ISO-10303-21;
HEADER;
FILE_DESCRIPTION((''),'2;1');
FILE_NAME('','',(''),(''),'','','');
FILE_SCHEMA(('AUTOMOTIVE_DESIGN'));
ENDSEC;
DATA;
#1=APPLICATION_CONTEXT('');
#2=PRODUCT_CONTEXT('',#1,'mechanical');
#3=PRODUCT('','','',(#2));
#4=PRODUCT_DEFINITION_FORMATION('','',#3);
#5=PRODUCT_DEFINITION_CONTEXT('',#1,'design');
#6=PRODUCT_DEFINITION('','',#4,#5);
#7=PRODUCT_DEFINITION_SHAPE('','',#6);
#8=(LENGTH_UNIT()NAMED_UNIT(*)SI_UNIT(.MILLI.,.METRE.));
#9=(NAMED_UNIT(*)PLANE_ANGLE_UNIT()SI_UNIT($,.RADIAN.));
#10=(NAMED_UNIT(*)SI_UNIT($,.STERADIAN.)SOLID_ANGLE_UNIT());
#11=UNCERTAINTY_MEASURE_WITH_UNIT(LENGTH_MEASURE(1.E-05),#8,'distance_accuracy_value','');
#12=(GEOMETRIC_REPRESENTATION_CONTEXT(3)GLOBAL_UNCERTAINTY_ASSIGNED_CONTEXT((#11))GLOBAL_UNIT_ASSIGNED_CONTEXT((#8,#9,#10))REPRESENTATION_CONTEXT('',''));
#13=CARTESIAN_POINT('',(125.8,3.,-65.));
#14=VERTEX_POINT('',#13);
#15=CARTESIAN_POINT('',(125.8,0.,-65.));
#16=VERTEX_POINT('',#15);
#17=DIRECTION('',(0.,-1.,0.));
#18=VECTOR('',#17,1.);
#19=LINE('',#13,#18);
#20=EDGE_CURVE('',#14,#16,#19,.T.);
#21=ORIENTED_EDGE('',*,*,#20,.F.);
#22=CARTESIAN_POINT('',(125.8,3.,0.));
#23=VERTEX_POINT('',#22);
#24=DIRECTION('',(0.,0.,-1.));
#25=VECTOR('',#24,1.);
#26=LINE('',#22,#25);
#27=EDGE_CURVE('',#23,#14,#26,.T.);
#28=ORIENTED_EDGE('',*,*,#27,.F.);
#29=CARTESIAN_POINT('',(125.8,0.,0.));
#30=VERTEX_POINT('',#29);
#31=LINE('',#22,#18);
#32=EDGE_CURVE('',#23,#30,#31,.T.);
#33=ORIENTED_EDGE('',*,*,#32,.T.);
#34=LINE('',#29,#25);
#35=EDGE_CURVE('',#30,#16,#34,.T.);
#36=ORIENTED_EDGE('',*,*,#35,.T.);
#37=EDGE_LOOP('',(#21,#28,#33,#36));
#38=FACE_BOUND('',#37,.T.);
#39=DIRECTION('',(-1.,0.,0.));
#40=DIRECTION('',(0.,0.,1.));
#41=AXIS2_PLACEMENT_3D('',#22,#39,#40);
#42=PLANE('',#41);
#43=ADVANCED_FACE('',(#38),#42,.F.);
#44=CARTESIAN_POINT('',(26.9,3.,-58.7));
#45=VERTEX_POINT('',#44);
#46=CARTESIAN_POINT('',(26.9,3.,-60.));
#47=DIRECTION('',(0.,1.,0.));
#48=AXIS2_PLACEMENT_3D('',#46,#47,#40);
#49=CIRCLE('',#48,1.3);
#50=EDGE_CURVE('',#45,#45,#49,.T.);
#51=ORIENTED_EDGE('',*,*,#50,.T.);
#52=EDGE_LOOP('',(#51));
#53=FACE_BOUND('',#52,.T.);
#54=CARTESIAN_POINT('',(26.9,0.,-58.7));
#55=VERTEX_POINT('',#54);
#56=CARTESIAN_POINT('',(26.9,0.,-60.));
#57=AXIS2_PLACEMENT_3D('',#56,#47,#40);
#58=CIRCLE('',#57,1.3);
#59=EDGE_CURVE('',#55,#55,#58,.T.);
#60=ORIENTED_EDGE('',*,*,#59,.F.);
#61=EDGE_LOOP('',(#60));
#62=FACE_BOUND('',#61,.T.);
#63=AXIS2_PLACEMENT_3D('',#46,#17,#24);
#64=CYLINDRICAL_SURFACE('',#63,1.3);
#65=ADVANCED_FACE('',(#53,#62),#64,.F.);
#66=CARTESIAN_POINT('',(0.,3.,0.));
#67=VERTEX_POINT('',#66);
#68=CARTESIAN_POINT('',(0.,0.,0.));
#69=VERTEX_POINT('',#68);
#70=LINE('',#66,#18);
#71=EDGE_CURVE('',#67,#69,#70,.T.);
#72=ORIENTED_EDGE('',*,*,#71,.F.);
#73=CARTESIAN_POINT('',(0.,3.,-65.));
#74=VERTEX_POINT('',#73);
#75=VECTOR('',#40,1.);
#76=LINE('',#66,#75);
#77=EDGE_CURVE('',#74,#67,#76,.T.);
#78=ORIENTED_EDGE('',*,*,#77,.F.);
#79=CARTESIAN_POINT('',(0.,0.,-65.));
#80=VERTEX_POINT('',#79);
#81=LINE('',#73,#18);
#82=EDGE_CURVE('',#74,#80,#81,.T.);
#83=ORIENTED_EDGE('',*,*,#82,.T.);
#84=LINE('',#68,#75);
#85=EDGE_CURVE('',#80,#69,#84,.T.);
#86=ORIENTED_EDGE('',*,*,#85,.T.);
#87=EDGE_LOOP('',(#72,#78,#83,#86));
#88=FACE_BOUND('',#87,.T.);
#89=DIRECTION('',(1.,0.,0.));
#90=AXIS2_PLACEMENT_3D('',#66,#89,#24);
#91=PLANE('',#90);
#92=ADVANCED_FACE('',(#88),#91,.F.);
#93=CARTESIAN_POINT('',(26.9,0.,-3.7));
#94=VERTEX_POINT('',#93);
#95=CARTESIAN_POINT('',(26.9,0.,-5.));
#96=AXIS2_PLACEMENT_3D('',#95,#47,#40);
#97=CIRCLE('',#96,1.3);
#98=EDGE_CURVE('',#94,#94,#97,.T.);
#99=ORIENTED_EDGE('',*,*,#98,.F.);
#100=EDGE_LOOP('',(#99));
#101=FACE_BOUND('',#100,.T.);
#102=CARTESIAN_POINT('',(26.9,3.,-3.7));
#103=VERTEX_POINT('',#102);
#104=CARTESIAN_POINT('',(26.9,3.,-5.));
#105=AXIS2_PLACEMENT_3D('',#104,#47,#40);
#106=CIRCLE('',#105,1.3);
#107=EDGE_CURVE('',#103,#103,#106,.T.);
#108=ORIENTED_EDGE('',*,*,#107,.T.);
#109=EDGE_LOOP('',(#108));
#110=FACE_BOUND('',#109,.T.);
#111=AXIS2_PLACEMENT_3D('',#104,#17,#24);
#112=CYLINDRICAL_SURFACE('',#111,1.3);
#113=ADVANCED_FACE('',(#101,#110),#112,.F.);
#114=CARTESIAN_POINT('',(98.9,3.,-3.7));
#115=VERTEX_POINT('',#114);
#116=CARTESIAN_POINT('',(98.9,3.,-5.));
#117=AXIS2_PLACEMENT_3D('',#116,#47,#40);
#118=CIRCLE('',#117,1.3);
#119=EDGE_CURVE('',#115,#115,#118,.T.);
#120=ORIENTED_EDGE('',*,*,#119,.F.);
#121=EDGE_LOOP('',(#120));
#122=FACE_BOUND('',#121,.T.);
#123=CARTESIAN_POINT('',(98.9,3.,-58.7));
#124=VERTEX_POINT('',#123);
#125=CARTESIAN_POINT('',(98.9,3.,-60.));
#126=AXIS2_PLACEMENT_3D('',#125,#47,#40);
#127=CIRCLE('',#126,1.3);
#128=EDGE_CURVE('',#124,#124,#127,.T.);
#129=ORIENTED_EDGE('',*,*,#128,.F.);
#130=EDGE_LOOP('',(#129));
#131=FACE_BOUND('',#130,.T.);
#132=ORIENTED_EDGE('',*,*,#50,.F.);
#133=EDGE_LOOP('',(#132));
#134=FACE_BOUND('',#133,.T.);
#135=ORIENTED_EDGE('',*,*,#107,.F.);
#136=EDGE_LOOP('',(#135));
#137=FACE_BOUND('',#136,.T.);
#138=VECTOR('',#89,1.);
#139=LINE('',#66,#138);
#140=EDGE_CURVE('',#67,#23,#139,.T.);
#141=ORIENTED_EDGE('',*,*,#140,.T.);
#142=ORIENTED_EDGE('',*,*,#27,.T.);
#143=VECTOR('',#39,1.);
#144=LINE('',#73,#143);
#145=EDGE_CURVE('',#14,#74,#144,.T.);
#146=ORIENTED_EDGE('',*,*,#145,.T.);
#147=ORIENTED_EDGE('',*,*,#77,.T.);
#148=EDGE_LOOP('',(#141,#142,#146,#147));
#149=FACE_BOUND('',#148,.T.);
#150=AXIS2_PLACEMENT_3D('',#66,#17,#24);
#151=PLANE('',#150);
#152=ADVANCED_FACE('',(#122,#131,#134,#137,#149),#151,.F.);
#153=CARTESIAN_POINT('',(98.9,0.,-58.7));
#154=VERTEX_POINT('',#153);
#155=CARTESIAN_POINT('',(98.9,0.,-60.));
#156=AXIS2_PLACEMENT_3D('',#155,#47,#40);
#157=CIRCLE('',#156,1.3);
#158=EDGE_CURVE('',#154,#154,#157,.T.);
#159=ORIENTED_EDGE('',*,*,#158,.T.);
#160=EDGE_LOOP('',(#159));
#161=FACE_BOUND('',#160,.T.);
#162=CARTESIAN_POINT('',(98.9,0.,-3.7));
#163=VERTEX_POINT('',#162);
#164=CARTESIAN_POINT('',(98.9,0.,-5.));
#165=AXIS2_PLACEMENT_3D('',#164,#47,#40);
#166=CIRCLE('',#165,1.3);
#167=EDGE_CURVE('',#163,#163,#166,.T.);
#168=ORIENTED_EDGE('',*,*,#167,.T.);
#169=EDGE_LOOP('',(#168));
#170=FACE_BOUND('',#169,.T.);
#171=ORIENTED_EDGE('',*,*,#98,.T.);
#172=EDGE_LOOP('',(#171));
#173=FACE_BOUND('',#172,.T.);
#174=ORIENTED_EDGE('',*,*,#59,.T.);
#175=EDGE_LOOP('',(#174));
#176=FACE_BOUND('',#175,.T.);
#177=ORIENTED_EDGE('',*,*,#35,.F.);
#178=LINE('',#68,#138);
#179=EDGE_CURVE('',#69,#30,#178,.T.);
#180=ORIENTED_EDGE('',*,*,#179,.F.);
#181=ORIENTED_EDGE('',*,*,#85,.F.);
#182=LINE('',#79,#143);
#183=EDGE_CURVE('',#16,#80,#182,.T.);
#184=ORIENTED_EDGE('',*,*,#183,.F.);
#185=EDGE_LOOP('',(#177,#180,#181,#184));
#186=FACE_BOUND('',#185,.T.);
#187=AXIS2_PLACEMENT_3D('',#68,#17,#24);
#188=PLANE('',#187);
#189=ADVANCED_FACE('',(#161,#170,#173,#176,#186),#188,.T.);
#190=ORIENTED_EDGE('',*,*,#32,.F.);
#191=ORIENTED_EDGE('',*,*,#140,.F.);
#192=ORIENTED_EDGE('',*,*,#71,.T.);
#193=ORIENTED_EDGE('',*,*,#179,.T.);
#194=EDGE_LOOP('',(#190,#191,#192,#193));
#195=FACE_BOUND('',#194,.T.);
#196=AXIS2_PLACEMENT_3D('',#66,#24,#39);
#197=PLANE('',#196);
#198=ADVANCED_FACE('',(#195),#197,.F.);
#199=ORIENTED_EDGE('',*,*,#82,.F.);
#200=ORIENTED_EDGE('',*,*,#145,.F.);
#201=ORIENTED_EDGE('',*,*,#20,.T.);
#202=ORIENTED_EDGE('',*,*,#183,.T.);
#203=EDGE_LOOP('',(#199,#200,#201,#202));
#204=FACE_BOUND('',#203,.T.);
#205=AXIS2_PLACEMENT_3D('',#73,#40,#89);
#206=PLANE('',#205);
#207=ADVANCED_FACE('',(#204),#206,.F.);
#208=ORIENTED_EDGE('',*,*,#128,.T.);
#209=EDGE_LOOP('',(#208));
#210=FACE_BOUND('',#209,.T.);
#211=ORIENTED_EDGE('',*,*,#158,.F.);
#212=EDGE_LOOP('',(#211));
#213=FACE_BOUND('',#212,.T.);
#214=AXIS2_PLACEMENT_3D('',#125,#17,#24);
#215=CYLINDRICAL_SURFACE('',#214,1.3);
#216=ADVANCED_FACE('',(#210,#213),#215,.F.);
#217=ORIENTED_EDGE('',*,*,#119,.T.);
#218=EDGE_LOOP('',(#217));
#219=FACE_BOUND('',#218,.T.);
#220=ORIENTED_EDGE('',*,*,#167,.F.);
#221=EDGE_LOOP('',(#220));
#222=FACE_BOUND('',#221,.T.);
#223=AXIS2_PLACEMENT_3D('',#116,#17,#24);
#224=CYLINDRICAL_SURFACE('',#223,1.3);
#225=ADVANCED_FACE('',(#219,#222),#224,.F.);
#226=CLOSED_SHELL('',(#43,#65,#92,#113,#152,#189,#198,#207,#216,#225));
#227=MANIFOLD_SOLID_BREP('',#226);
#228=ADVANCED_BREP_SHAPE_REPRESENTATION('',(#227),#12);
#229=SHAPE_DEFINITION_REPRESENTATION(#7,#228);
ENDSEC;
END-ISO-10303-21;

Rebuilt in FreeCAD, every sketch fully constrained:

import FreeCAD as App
import Part
import Sketcher
from FreeCAD import Vector


def add_polygon(sketch, points):
    """Adds a closed chain of lines whose ends are joined by coincident constraints."""
    first, n = sketch.GeometryCount, len(points)
    for a, b in zip(points, points[1:] + points[:1]):
        sketch.addGeometry(Part.LineSegment(App.Vector(*a, 0), App.Vector(*b, 0)), False)
    for i in range(n):
        sketch.addConstraint(Sketcher.Constraint("Coincident", first + i, 2, first + (i + 1) % n, 1))

doc = App.newDocument("Part")
body = doc.addObject("PartDesign::Body", "Body")

sketch1 = body.newObject("Sketcher::SketchObject", "Sketch")
sketch1.AttachmentSupport = (doc.getObject("XZ_Plane"), [""])
sketch1.MapMode = "FlatFace"
add_polygon(sketch1, [(0, -65), (0, 0), (125.8, 0), (125.8, -65)])
sketch1.addGeometry(Part.Circle(Vector(26.9, -5, 0), Vector(0, 0, 1), 1.3), False)
sketch1.addGeometry(Part.Circle(Vector(98.9, -5, 0), Vector(0, 0, 1), 1.3), False)
sketch1.addGeometry(Part.Circle(Vector(26.9, -60, 0), Vector(0, 0, 1), 1.3), False)
sketch1.addGeometry(Part.Circle(Vector(98.9, -60, 0), Vector(0, 0, 1), 1.3), False)
sketch1.addConstraint([
    Sketcher.Constraint("Vertical", 0),
    Sketcher.Constraint("Horizontal", 1),
    Sketcher.Constraint("Vertical", 2),
    Sketcher.Constraint("Horizontal", 3),
    Sketcher.Constraint("Coincident", 0, 2, -1, 1),
    Sketcher.Constraint("Equal", 4, 5),
    Sketcher.Constraint("Equal", 5, 6),
    Sketcher.Constraint("Equal", 6, 7),
    Sketcher.Constraint("Horizontal", 4, 3, 5, 3),
    Sketcher.Constraint("Horizontal", 6, 3, 7, 3),
    Sketcher.Constraint("Vertical", 4, 3, 6, 3),
    Sketcher.Constraint("Vertical", 5, 3, 7, 3),
    Sketcher.Constraint("Diameter", 4, 2.6),
    Sketcher.Constraint("DistanceY", 0, 1, 0, 2, 65.0),
    Sketcher.Constraint("DistanceX", 1, 1, 1, 2, 125.8),
    Sketcher.Constraint("DistanceY", 4, 3, -1, 1, 5.0),
    Sketcher.Constraint("DistanceY", 6, 3, -1, 1, 60.0),
    Sketcher.Constraint("DistanceX", 4, 3, 5, 3, 72.0),
    Sketcher.Constraint("DistanceX", -1, 1, 4, 3, 26.9),
])
pad1 = body.newObject("PartDesign::Pad", "Pad")
pad1.Profile = sketch1
pad1.Length = 3
pad1.Reversed = True

doc.recompute()
